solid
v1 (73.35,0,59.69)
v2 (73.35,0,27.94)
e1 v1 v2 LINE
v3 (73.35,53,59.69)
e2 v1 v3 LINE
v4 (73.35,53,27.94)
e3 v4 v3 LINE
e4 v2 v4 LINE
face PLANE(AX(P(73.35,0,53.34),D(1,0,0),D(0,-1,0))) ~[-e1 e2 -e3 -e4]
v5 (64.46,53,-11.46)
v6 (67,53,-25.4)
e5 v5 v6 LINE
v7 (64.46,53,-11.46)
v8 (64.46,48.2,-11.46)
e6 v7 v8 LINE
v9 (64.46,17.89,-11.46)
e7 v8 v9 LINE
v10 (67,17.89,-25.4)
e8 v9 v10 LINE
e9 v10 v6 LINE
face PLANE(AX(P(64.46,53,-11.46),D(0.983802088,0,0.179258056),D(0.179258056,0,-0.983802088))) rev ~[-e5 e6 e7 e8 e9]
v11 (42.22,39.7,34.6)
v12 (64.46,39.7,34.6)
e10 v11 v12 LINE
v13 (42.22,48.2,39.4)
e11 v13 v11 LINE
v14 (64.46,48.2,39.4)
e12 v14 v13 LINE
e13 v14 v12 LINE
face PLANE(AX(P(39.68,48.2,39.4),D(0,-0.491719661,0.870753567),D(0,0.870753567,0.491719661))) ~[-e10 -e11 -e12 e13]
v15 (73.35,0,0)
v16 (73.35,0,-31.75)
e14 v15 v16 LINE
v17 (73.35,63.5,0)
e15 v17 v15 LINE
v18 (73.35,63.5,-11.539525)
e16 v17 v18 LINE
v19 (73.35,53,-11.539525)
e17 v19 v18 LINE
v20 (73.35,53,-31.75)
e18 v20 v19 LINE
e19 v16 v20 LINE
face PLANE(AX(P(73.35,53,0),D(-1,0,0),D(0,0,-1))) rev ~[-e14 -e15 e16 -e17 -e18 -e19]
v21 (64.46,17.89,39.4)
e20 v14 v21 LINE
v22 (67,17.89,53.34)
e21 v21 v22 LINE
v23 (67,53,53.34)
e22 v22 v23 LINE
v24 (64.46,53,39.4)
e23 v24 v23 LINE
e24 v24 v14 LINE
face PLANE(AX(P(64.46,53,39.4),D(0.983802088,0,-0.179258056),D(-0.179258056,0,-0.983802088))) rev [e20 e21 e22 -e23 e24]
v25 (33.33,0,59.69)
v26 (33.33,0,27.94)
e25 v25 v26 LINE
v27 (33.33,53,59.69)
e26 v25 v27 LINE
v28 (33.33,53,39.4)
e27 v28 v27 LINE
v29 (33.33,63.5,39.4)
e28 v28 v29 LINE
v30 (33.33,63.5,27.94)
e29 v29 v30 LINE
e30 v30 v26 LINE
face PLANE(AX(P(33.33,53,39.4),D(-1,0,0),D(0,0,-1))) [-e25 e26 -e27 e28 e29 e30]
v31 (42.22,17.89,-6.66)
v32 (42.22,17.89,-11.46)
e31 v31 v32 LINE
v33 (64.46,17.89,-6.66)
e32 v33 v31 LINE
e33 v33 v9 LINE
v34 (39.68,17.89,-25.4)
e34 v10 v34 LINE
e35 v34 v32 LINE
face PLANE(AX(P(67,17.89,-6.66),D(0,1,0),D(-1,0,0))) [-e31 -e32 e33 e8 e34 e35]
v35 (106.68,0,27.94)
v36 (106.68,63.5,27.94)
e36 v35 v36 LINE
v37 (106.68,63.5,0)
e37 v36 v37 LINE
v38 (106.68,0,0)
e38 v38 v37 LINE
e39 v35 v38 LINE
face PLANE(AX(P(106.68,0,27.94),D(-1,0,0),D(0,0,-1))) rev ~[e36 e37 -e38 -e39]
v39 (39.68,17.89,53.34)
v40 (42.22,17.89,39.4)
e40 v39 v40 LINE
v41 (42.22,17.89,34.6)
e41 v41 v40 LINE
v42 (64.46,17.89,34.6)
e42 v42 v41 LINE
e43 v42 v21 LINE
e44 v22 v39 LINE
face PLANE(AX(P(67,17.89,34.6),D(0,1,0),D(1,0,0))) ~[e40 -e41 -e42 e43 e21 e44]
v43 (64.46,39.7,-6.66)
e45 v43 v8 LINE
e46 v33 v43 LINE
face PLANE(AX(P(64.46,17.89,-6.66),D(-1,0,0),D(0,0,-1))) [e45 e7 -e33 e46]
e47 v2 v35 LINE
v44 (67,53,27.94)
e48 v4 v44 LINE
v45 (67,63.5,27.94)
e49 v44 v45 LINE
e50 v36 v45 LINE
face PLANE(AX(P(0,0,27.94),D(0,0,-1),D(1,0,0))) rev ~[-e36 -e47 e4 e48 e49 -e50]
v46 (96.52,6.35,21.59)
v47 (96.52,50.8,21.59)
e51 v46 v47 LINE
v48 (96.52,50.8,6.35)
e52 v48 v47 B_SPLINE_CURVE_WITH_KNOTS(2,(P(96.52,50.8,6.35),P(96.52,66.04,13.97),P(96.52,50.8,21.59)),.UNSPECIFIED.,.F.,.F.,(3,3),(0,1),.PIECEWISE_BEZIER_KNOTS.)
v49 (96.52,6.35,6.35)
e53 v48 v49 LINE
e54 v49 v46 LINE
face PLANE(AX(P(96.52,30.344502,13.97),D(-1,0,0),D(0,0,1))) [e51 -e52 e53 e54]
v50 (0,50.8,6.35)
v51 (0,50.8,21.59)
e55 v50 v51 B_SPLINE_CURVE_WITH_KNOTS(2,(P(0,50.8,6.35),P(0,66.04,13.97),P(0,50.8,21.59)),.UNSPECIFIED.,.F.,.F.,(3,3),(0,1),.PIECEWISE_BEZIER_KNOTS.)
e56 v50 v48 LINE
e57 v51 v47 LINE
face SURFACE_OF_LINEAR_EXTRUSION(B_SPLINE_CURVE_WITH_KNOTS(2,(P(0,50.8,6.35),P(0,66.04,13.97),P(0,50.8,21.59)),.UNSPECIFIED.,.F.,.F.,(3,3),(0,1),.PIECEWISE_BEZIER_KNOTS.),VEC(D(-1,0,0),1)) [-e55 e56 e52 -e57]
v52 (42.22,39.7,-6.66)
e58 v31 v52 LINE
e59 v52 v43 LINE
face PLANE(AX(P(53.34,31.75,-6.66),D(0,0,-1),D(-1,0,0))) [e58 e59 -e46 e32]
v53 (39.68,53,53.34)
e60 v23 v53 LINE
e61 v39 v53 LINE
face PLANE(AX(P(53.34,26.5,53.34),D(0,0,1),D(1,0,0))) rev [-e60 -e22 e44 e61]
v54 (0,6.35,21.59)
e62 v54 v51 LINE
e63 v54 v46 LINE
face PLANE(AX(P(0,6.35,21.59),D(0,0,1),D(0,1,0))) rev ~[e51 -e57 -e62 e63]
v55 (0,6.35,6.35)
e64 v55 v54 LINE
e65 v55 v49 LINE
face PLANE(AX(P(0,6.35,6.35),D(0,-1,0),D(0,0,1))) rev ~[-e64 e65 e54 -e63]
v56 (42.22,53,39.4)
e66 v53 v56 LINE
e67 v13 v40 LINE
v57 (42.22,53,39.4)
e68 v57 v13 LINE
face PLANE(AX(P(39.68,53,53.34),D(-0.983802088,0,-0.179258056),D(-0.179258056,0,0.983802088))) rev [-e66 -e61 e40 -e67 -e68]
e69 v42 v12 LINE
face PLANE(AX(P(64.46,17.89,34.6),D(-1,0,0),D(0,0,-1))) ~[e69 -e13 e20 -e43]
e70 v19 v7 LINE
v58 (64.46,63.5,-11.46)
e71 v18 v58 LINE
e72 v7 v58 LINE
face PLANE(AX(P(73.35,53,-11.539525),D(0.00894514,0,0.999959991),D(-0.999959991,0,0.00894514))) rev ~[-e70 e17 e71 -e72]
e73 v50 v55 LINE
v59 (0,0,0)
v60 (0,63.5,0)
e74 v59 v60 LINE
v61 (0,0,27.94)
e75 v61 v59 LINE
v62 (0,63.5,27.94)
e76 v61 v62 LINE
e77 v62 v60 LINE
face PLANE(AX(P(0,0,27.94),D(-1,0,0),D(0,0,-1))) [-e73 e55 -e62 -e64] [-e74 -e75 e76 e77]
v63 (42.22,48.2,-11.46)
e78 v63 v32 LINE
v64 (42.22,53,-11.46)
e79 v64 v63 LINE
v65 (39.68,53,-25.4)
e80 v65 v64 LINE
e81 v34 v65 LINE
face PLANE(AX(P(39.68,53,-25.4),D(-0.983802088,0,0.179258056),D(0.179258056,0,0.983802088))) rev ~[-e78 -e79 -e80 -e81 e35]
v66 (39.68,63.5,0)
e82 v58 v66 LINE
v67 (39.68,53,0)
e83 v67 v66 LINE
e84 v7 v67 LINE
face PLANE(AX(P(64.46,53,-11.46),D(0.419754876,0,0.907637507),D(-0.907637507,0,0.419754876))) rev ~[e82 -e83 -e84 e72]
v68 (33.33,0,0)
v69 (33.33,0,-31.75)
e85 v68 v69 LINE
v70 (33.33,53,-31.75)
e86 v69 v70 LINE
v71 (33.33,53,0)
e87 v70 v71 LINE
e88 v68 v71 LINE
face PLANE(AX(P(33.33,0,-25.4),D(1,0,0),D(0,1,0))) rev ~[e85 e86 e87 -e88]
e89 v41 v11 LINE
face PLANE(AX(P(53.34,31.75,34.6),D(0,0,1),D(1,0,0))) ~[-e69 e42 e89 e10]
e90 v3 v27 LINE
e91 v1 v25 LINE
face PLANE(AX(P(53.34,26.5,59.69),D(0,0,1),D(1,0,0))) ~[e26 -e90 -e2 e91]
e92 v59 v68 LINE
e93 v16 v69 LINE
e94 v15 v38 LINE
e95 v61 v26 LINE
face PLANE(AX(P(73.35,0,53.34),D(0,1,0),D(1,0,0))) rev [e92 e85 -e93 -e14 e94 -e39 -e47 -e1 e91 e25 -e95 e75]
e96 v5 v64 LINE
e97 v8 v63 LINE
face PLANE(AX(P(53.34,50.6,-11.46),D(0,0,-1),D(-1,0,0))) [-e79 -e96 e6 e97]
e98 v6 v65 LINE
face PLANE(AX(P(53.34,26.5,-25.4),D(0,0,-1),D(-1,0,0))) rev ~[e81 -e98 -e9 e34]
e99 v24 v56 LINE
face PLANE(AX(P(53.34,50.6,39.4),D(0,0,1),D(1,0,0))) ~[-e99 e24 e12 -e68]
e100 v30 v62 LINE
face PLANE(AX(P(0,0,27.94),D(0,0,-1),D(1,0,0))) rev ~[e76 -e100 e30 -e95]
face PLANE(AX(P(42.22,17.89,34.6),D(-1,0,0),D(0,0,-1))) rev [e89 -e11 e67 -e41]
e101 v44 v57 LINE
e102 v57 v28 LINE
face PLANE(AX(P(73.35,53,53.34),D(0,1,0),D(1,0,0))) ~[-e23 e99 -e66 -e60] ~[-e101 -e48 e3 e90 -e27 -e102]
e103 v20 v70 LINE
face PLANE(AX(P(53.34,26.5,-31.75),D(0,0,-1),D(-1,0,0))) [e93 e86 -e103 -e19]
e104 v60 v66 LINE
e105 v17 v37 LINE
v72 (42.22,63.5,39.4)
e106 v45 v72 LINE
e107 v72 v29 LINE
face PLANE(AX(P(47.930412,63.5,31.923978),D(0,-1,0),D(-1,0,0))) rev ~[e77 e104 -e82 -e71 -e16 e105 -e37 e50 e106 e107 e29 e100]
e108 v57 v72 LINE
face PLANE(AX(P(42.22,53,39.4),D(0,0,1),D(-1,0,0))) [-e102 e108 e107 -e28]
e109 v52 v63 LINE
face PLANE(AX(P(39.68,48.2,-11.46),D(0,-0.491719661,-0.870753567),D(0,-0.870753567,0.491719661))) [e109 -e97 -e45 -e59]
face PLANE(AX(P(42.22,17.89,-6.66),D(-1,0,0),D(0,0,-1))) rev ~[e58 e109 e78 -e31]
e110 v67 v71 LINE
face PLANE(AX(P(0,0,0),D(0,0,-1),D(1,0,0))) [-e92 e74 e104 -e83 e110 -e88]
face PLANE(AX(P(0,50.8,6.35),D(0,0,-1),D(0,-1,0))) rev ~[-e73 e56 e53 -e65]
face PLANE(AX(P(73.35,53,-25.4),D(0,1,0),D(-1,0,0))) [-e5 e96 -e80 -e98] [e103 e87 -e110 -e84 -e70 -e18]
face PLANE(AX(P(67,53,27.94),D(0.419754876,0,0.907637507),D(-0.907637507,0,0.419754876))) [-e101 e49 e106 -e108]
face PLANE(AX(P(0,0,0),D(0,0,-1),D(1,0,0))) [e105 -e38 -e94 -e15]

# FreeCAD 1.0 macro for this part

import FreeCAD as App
import Part
import Sketcher
from FreeCAD import Vector
Q = App.Units.Quantity

doc = App.newDocument("Part")
body = doc.addObject("PartDesign::Body", "Body")

# Sketch on XZ plane
sketch1 = doc.addObject("Sketcher::SketchObject", "Sketch")
body.addObject(sketch1)
sketch1.AttachmentSupport = (doc.XZ_Plane, [""])
sketch1.MapMode = "FlatFace"
sketch1.addGeometry([
    Part.LineSegment(Vector(0, 0, 0), Vector(0, 28, 0)),
    Part.LineSegment(Vector(0, 28, 0), Vector(107, 28, 0)),
    Part.LineSegment(Vector(107, 28, 0), Vector(107, 0, 0)),
    Part.LineSegment(Vector(107, 0, 0), Vector(0, 0, 0)),
], False)
sketch1.addConstraint([
    Sketcher.Constraint("Coincident", 0, 2, 1, 1),
    Sketcher.Constraint("Coincident", 1, 2, 2, 1),
    Sketcher.Constraint("Coincident", 2, 2, 3, 1),
    Sketcher.Constraint("Coincident", 3, 2, 0, 1),
    Sketcher.Constraint("Vertical", 0),
    Sketcher.Constraint("Horizontal", 1),
    Sketcher.Constraint("Vertical", 2),
    Sketcher.Constraint("Horizontal", 3),
    Sketcher.Constraint("Coincident", 3, 2, -1, 1),
    Sketcher.Constraint("DistanceX", 1, 1, 1, 2, Q("4.2 in")),
    Sketcher.Constraint("DistanceY", 0, 1, 0, 2, Q("1.1 in")),
])
pad1 = doc.addObject("PartDesign::Pad", "Pad")
body.addObject(pad1)
pad1.Profile = sketch1
pad1.Length = Q("2.5 in")
pad1.Reversed = True

# Sketch on YZ plane
sketch2 = doc.addObject("Sketcher::SketchObject", "Sketch001")
body.addObject(sketch2)
sketch2.AttachmentSupport = (doc.YZ_Plane, [""])
sketch2.MapMode = "FlatFace"
sketch2.addGeometry([
    Part.LineSegment(Vector(50.8, 6.35, 0), Vector(6.35, 6.35, 0)),
    Part.LineSegment(Vector(6.35, 6.35, 0), Vector(6.35, 21.59, 0)),
    Part.LineSegment(Vector(6.35, 21.59, 0), Vector(50.8, 21.59, 0)),
    Part.BSplineCurve([Vector(50.8, 6.35, 0), Vector(66.04, 13.97, 0), Vector(50.8, 21.59, 0)], [3, 3], [0, 1], False, 2, [1, 1, 1], False),
], False)
sketch2.addConstraint([
    Sketcher.Constraint("Block", 3),
    Sketcher.Constraint("Coincident", 0, 2, 1, 1),
    Sketcher.Constraint("Coincident", 1, 2, 2, 1),
    Sketcher.Constraint("Coincident", 2, 2, 3, 2),
    Sketcher.Constraint("Coincident", 3, 1, 0, 1),
    Sketcher.Constraint("Horizontal", 0),
    Sketcher.Constraint("Vertical", 1),
    Sketcher.Constraint("Horizontal", 2),
    Sketcher.Constraint("DistanceX", 0, 2, 0, 1, Q("1.75 in")),
])
pocket1 = doc.addObject("PartDesign::Pocket", "Pocket")
body.addObject(pocket1)
pocket1.Profile = sketch2
pocket1.Length = Q("3.8 in")
pocket1.Reversed = True

# Sketch on XY plane
sketch3 = doc.addObject("Sketcher::SketchObject", "Sketch002")
body.addObject(sketch3)
sketch3.AttachmentSupport = (doc.XY_Plane, [""])
sketch3.MapMode = "FlatFace"
sketch3.addGeometry([
    Part.LineSegment(Vector(73, 64, 0), Vector(73, 0, 0)),
    Part.LineSegment(Vector(73, 0, 0), Vector(33, 0, 0)),
    Part.LineSegment(Vector(33, 0, 0), Vector(33, 64, 0)),
    Part.LineSegment(Vector(33, 64, 0), Vector(73, 64, 0)),
], False)
sketch3.addConstraint([
    Sketcher.Constraint("Coincident", 0, 2, 1, 1),
    Sketcher.Constraint("Coincident", 1, 2, 2, 1),
    Sketcher.Constraint("Coincident", 2, 2, 3, 1),
    Sketcher.Constraint("Coincident", 3, 2, 0, 1),
    Sketcher.Constraint("Vertical", 0),
    Sketcher.Constraint("Horizontal", 1),
    Sketcher.Constraint("Vertical", 2),
    Sketcher.Constraint("Horizontal", 3),
    Sketcher.Constraint("PointOnObject", 0, 2, -1),
    Sketcher.Constraint("DistanceY", 0, 2, 0, 1, Q("2.5 in")),
    Sketcher.Constraint("DistanceX", 1, 2, 1, 1, 40.02),
    Sketcher.Constraint("DistanceX", -1, 1, 0, 2, 73.35),
])
pad2 = doc.addObject("PartDesign::Pad", "Pad001")
body.addObject(pad2)
pad2.Profile = sketch3
pad2.Length = 6.66
pad2.Reversed = True

# Sketch on XY plane
sketch4 = doc.addObject("Sketcher::SketchObject", "Sketch003")
body.addObject(sketch4)
sketch4.AttachmentSupport = (doc.XY_Plane, [""])
sketch4.MapMode = "FlatFace"
sketch4.AttachmentOffset = App.Placement(Vector(0, 0, -6.66), App.Rotation())
sketch4.addGeometry([
    Part.LineSegment(Vector(73, 64, 0), Vector(73, 0, 0)),
    Part.LineSegment(Vector(73, 0, 0), Vector(67, 0, 0)),
    Part.LineSegment(Vector(67, 0, 0), Vector(67, 64, 0)),
    Part.LineSegment(Vector(67, 64, 0), Vector(73, 64, 0)),
], False)
sketch4.addConstraint([
    Sketcher.Constraint("Coincident", 0, 2, 1, 1),
    Sketcher.Constraint("Coincident", 1, 2, 2, 1),
    Sketcher.Constraint("Coincident", 2, 2, 3, 1),
    Sketcher.Constraint("Coincident", 3, 2, 0, 1),
    Sketcher.Constraint("Vertical", 0),
    Sketcher.Constraint("Horizontal", 1),
    Sketcher.Constraint("Vertical", 2),
    Sketcher.Constraint("Horizontal", 3),
    Sketcher.Constraint("PointOnObject", 0, 2, -1),
    Sketcher.Constraint("DistanceY", 0, 2, 0, 1, Q("2.5 in")),
    Sketcher.Constraint("DistanceX", 1, 2, 1, 1, Q("0.25 in")),
    Sketcher.Constraint("DistanceX", -1, 1, 0, 2, 73.35),
])
pad3 = doc.addObject("PartDesign::Pad", "Pad002")
body.addObject(pad3)
pad3.Profile = sketch4
pad3.Length = 18.74
pad3.Reversed = True

# Sketch on XY plane
sketch5 = doc.addObject("Sketcher::SketchObject", "Sketch004")
body.addObject(sketch5)
sketch5.AttachmentSupport = (doc.XY_Plane, [""])
sketch5.MapMode = "FlatFace"
sketch5.AttachmentOffset = App.Placement(Vector(0, 0, -6.66), App.Rotation())
sketch5.addGeometry([
    Part.LineSegment(Vector(40, 64, 0), Vector(40, 0, 0)),
    Part.LineSegment(Vector(40, 0, 0), Vector(33, 0, 0)),
    Part.LineSegment(Vector(33, 0, 0), Vector(33, 64, 0)),
    Part.LineSegment(Vector(33, 64, 0), Vector(40, 64, 0)),
], False)
sketch5.addConstraint([
    Sketcher.Constraint("Coincident", 0, 2, 1, 1),
    Sketcher.Constraint("Coincident", 1, 2, 2, 1),
    Sketcher.Constraint("Coincident", 2, 2, 3, 1),
    Sketcher.Constraint("Coincident", 3, 2, 0, 1),
    Sketcher.Constraint("Vertical", 0),
    Sketcher.Constraint("Horizontal", 1),
    Sketcher.Constraint("Vertical", 2),
    Sketcher.Constraint("Horizontal", 3),
    Sketcher.Constraint("PointOnObject", 0, 2, -1),
    Sketcher.Constraint("DistanceY", 0, 2, 0, 1, Q("2.5 in")),
    Sketcher.Constraint("DistanceX", 1, 2, 1, 1, Q("0.25 in")),
    Sketcher.Constraint("DistanceX", -1, 1, 0, 2, 39.68),
])
pad4 = doc.addObject("PartDesign::Pad", "Pad003")
body.addObject(pad4)
pad4.Profile = sketch5
pad4.Length = 18.74
pad4.Reversed = True

# Sketch on XY plane
sketch6 = doc.addObject("Sketcher::SketchObject", "Sketch005")
body.addObject(sketch6)
sketch6.AttachmentSupport = (doc.XY_Plane, [""])
sketch6.MapMode = "FlatFace"
sketch6.AttachmentOffset = App.Placement(Vector(0, 0, -6.66), App.Rotation())
sketch6.addGeometry([
    Part.LineSegment(Vector(67, 18, 0), Vector(67, 0, 0)),
    Part.LineSegment(Vector(67, 0, 0), Vector(40, 0, 0)),
    Part.LineSegment(Vector(40, 0, 0), Vector(40, 18, 0)),
    Part.LineSegment(Vector(40, 18, 0), Vector(67, 18, 0)),
], False)
sketch6.addConstraint([
    Sketcher.Constraint("Coincident", 0, 2, 1, 1),
    Sketcher.Constraint("Coincident", 1, 2, 2, 1),
    Sketcher.Constraint("Coincident", 2, 2, 3, 1),
    Sketcher.Constraint("Coincident", 3, 2, 0, 1),
    Sketcher.Constraint("Vertical", 0),
    Sketcher.Constraint("Horizontal", 1),
    Sketcher.Constraint("Vertical", 2),
    Sketcher.Constraint("Horizontal", 3),
    Sketcher.Constraint("PointOnObject", 0, 2, -1),
    Sketcher.Constraint("DistanceX", 1, 2, 1, 1, 27.32),
    Sketcher.Constraint("DistanceY", 0, 2, 0, 1, 17.89),
    Sketcher.Constraint("DistanceX", -1, 1, 0, 2, 67.0),
])
pad5 = doc.addObject("PartDesign::Pad", "Pad004")
body.addObject(pad5)
pad5.Profile = sketch6
pad5.Length = 18.74
pad5.Reversed = True

# Sketch on XZ plane
sketch7 = doc.addObject("Sketcher::SketchObject", "Sketch006")
body.addObject(sketch7)
sketch7.AttachmentSupport = (doc.XZ_Plane, [""])
sketch7.MapMode = "FlatFace"
sketch7.AttachmentOffset = App.Placement(Vector(0, 0, -2.5 * 25.4), App.Rotation())
sketch7.addGeometry([
    Part.LineSegment(Vector(33, 0, 0), Vector(73, 0, 0)),  # 0
    Part.LineSegment(Vector(73, 0, 0), Vector(73, -25, 0)),  # 1
    Part.LineSegment(Vector(73, -25, 0), Vector(67, -25, 0)),  # 2
    Part.LineSegment(Vector(67, -25, 0), Vector(67, -7, 0)),  # 3
    Part.LineSegment(Vector(67, -7, 0), Vector(40, -7, 0)),  # 4
    Part.LineSegment(Vector(40, -7, 0), Vector(40, -25, 0)),  # 5
    Part.LineSegment(Vector(40, -25, 0), Vector(33, -25, 0)),  # 6
    Part.LineSegment(Vector(33, -25, 0), Vector(33, 0, 0)),  # 7
], False)
sketch7.addConstraint([
    Sketcher.Constraint("Coincident", 0, 2, 1, 1),
    Sketcher.Constraint("Coincident", 1, 2, 2, 1),
    Sketcher.Constraint("Coincident", 2, 2, 3, 1),
    Sketcher.Constraint("Coincident", 3, 2, 4, 1),
    Sketcher.Constraint("Coincident", 4, 2, 5, 1),
    Sketcher.Constraint("Coincident", 5, 2, 6, 1),
    Sketcher.Constraint("Coincident", 6, 2, 7, 1),
    Sketcher.Constraint("Coincident", 7, 2, 0, 1),
    Sketcher.Constraint("Horizontal", 0),
    Sketcher.Constraint("Vertical", 1),
    Sketcher.Constraint("Horizontal", 2),
    Sketcher.Constraint("Vertical", 3),
    Sketcher.Constraint("Horizontal", 4),
    Sketcher.Constraint("Vertical", 5),
    Sketcher.Constraint("Horizontal", 6),
    Sketcher.Constraint("Vertical", 7),
    Sketcher.Constraint("PointOnObject", 0, 2, -1),
    Sketcher.Constraint("Horizontal", 2, 2, 5, 2),
    Sketcher.Constraint("Equal", 2, 6),
    Sketcher.Constraint("DistanceY", 1, 2, 1, 1, Q("1 in")),
    Sketcher.Constraint("DistanceX", 2, 2, 2, 1, Q("0.25 in")),
    Sketcher.Constraint("DistanceX", 0, 1, 0, 2, 40.02),
    Sketcher.Constraint("DistanceY", 3, 1, 3, 2, 18.74),
    Sketcher.Constraint("DistanceX", -1, 1, 0, 2, 73.35),
])
pocket2 = doc.addObject("PartDesign::Pocket", "Pocket001")
body.addObject(pocket2)
pocket2.Profile = sketch7
pocket2.Length = 10.5
pocket2.Reversed = True

# Sketch on XY plane
sketch8 = doc.addObject("Sketcher::SketchObject", "Sketch007")
body.addObject(sketch8)
sketch8.AttachmentSupport = (doc.XY_Plane, [""])
sketch8.MapMode = "FlatFace"
sketch8.AttachmentOffset = App.Placement(Vector(0, 0, -6.66), App.Rotation())
sketch8.addGeometry([
    Part.LineSegment(Vector(67, 53, 0), Vector(67, 48.2, 0)),
    Part.LineSegment(Vector(67, 48.2, 0), Vector(39.7, 48.2, 0)),
    Part.LineSegment(Vector(39.7, 48.2, 0), Vector(39.7, 53, 0)),
    Part.LineSegment(Vector(39.7, 53, 0), Vector(67, 53, 0)),
], False)
sketch8.addConstraint([
    Sketcher.Constraint("Coincident", 0, 2, 1, 1),
    Sketcher.Constraint("Coincident", 1, 2, 2, 1),
    Sketcher.Constraint("Coincident", 2, 2, 3, 1),
    Sketcher.Constraint("Coincident", 3, 2, 0, 1),
    Sketcher.Constraint("Vertical", 0),
    Sketcher.Constraint("Horizontal", 1),
    Sketcher.Constraint("Vertical", 2),
    Sketcher.Constraint("Horizontal", 3),
    Sketcher.Constraint("DistanceX", 1, 2, 1, 1, 27.32),
    Sketcher.Constraint("DistanceY", 0, 2, 0, 1, 4.8),
    Sketcher.Constraint("DistanceX", -1, 1, 0, 2, 67.0),
    Sketcher.Constraint("DistanceY", -1, 1, 0, 2, 48.2),
])
pad6 = doc.addObject("PartDesign::Pad", "Pad005")
body.addObject(pad6)
pad6.Profile = sketch8
pad6.Length = 4.8
pad6.Reversed = True

# Sketch on YZ plane
sketch9 = doc.addObject("Sketcher::SketchObject", "Sketch008")
body.addObject(sketch9)
sketch9.AttachmentSupport = (doc.YZ_Plane, [""])
sketch9.MapMode = "FlatFace"
sketch9.AttachmentOffset = App.Placement(Vector(0, 0, 39.68), App.Rotation())
sketch9.addGeometry([
    Part.LineSegment(Vector(39.7, -6.7, 0), Vector(48.2, -11.5, 0)),
    Part.LineSegment(Vector(48.2, -11.5, 0), Vector(48.2, -6.7, 0)),
    Part.LineSegment(Vector(48.2, -6.7, 0), Vector(39.7, -6.7, 0)),
], False)
sketch9.addConstraint([
    Sketcher.Constraint("Coincident", 0, 2, 1, 1),
    Sketcher.Constraint("Coincident", 1, 2, 2, 1),
    Sketcher.Constraint("Coincident", 2, 2, 0, 1),
    Sketcher.Constraint("Vertical", 1),
    Sketcher.Constraint("Horizontal", 2),
    Sketcher.Constraint("DistanceX", 2, 2, 2, 1, 8.5),
    Sketcher.Constraint("DistanceY", 1, 1, 1, 2, 4.8),
    Sketcher.Constraint("DistanceX", -1, 1, 0, 2, 48.2),
    Sketcher.Constraint("DistanceY", 0, 2, -1, 1, 11.46),
])
pad7 = doc.addObject("PartDesign::Pad", "Pad006")
body.addObject(pad7)
pad7.Profile = sketch9
pad7.Length = 33.36

# Sketch on XZ plane
sketch10 = doc.addObject("Sketcher::SketchObject", "Sketch009")
body.addObject(sketch10)
sketch10.AttachmentSupport = (doc.XZ_Plane, [""])
sketch10.MapMode = "FlatFace"
sketch10.AttachmentOffset = App.Placement(Vector(0, 0, -53), App.Rotation())
sketch10.addGeometry([
    Part.LineSegment(Vector(67, -25.4, 0), Vector(64.5, -11.5, 0)),
    Part.LineSegment(Vector(64.5, -11.5, 0), Vector(67, -11.5, 0)),
    Part.LineSegment(Vector(67, -11.5, 0), Vector(67, -25.4, 0)),
], False)
sketch10.addConstraint([
    Sketcher.Constraint("Coincident", 0, 2, 1, 1),
    Sketcher.Constraint("Coincident", 1, 2, 2, 1),
    Sketcher.Constraint("Coincident", 2, 2, 0, 1),
    Sketcher.Constraint("Horizontal", 1),
    Sketcher.Constraint("Vertical", 2),
    Sketcher.Constraint("DistanceX", 1, 1, 1, 2, Q("0.1 in")),
    Sketcher.Constraint("DistanceY", 2, 2, -1, 1, Q("1 in")),
    Sketcher.Constraint("DistanceY", 2, 2, 2, 1, 13.94),
    Sketcher.Constraint("DistanceX", -1, 1, 0, 2, 64.46),
])
pad8 = doc.addObject("PartDesign::Pad", "Pad007")
body.addObject(pad8)
pad8.Profile = sketch10
pad8.Length = 35.11

# Sketch on XZ plane
sketch11 = doc.addObject("Sketcher::SketchObject", "Sketch010")
body.addObject(sketch11)
sketch11.AttachmentSupport = (doc.XZ_Plane, [""])
sketch11.MapMode = "FlatFace"
sketch11.AttachmentOffset = App.Placement(Vector(0, 0, -53), App.Rotation())
sketch11.addGeometry([
    Part.LineSegment(Vector(39.7, -11.5, 0), Vector(42.2, -11.5, 0)),
    Part.LineSegment(Vector(42.2, -11.5, 0), Vector(39.7, -25.4, 0)),
    Part.LineSegment(Vector(39.7, -25.4, 0), Vector(39.7, -11.5, 0)),
], False)
sketch11.addConstraint([
    Sketcher.Constraint("Coincident", 0, 2, 1, 1),
    Sketcher.Constraint("Coincident", 1, 2, 2, 1),
    Sketcher.Constraint("Coincident", 2, 2, 0, 1),
    Sketcher.Constraint("Horizontal", 0),
    Sketcher.Constraint("Vertical", 2),
    Sketcher.Constraint("DistanceX", 0, 1, 0, 2, Q("0.1 in")),
    Sketcher.Constraint("DistanceY", 1, 2, -1, 1, Q("1 in")),
    Sketcher.Constraint("DistanceY", 2, 1, 2, 2, 13.94),
    Sketcher.Constraint("DistanceX", -1, 1, 0, 2, 42.22),
])
pad9 = doc.addObject("PartDesign::Pad", "Pad008")
body.addObject(pad9)
pad9.Profile = sketch11
pad9.Length = 35.11

# Sketch on XY plane
sketch12 = doc.addObject("Sketcher::SketchObject", "Sketch011")
body.addObject(sketch12)
sketch12.AttachmentSupport = (doc.XY_Plane, [""])
sketch12.MapMode = "FlatFace"
sketch12.AttachmentOffset = App.Placement(Vector(0, 0, -1 * 25.4), App.Rotation())
sketch12.addGeometry([
    Part.LineSegment(Vector(73, 53, 0), Vector(73, 0, 0)),
    Part.LineSegment(Vector(73, 0, 0), Vector(33, 0, 0)),
    Part.LineSegment(Vector(33, 0, 0), Vector(33, 53, 0)),
    Part.LineSegment(Vector(33, 53, 0), Vector(73, 53, 0)),
], False)
sketch12.addConstraint([
    Sketcher.Constraint("Coincident", 0, 2, 1, 1),
    Sketcher.Constraint("Coincident", 1, 2, 2, 1),
    Sketcher.Constraint("Coincident", 2, 2, 3, 1),
    Sketcher.Constraint("Coincident", 3, 2, 0, 1),
    Sketcher.Constraint("Vertical", 0),
    Sketcher.Constraint("Horizontal", 1),
    Sketcher.Constraint("Vertical", 2),
    Sketcher.Constraint("Horizontal", 3),
    Sketcher.Constraint("PointOnObject", 0, 2, -1),
    Sketcher.Constraint("DistanceX", 1, 2, 1, 1, 40.02),
    Sketcher.Constraint("DistanceY", 0, 2, 0, 1, 53.0),
    Sketcher.Constraint("DistanceX", -1, 1, 0, 2, 73.35),
])
pad10 = doc.addObject("PartDesign::Pad", "Pad009")
body.addObject(pad10)
pad10.Profile = sketch12
pad10.Length = Q("0.25 in")
pad10.Reversed = True

# Sketch on XZ plane
sketch13 = doc.addObject("Sketcher::SketchObject", "Sketch012")
body.addObject(sketch13)
sketch13.AttachmentSupport = (doc.XZ_Plane, [""])
sketch13.MapMode = "FlatFace"
sketch13.AttachmentOffset = App.Placement(Vector(0, 0, -17.89), App.Rotation())
sketch13.addGeometry([
    Part.LineSegment(Vector(64.5, -11.5, 0), Vector(64.5, -6.7, 0)),
    Part.LineSegment(Vector(64.5, -6.7, 0), Vector(67, -6.7, 0)),
    Part.LineSegment(Vector(67, -6.7, 0), Vector(67, -11.5, 0)),
    Part.LineSegment(Vector(67, -11.5, 0), Vector(64.5, -11.5, 0)),
], False)
sketch13.addConstraint([
    Sketcher.Constraint("Coincident", 0, 2, 1, 1),
    Sketcher.Constraint("Coincident", 1, 2, 2, 1),
    Sketcher.Constraint("Coincident", 2, 2, 3, 1),
    Sketcher.Constraint("Coincident", 3, 2, 0, 1),
    Sketcher.Constraint("Vertical", 0),
    Sketcher.Constraint("Horizontal", 1),
    Sketcher.Constraint("Vertical", 2),
    Sketcher.Constraint("Horizontal", 3),
    Sketcher.Constraint("DistanceX", 1, 1, 1, 2, Q("0.1 in")),
    Sketcher.Constraint("DistanceY", 0, 1, 0, 2, 4.8),
    Sketcher.Constraint("DistanceX", -1, 1, 0, 2, 64.46),
    Sketcher.Constraint("DistanceY", 0, 2, -1, 1, 6.66),
])
pad11 = doc.addObject("PartDesign::Pad", "Pad010")
body.addObject(pad11)
pad11.Profile = sketch13
pad11.Length = 35.11
pad11.Reversed = True

# Sketch on XZ plane
sketch14 = doc.addObject("Sketcher::SketchObject", "Sketch013")
body.addObject(sketch14)
sketch14.AttachmentSupport = (doc.XZ_Plane, [""])
sketch14.MapMode = "FlatFace"
sketch14.AttachmentOffset = App.Placement(Vector(0, 0, -17.89), App.Rotation())
sketch14.addGeometry([
    Part.LineSegment(Vector(39.7, -11.5, 0), Vector(39.7, -6.7, 0)),
    Part.LineSegment(Vector(39.7, -6.7, 0), Vector(42.2, -6.7, 0)),
    Part.LineSegment(Vector(42.2, -6.7, 0), Vector(42.2, -11.5, 0)),
    Part.LineSegment(Vector(42.2, -11.5, 0), Vector(39.7, -11.5, 0)),
], False)
sketch14.addConstraint([
    Sketcher.Constraint("Coincident", 0, 2, 1, 1),
    Sketcher.Constraint("Coincident", 1, 2, 2, 1),
    Sketcher.Constraint("Coincident", 2, 2, 3, 1),
    Sketcher.Constraint("Coincident", 3, 2, 0, 1),
    Sketcher.Constraint("Vertical", 0),
    Sketcher.Constraint("Horizontal", 1),
    Sketcher.Constraint("Vertical", 2),
    Sketcher.Constraint("Horizontal", 3),
    Sketcher.Constraint("DistanceX", 1, 1, 1, 2, Q("0.1 in")),
    Sketcher.Constraint("DistanceY", 0, 1, 0, 2, 4.8),
    Sketcher.Constraint("DistanceX", -1, 1, 0, 2, 39.68),
    Sketcher.Constraint("DistanceY", 0, 2, -1, 1, 6.66),
])
pad12 = doc.addObject("PartDesign::Pad", "Pad011")
body.addObject(pad12)
pad12.Profile = sketch14
pad12.Length = 35.11
pad12.Reversed = True
doc.recompute()

datumplane = doc.addObject("PartDesign::Plane", "DatumPlane")
body.addObject(datumplane)
datumplane.AttachmentSupport = (doc.XY_Plane, [""])
datumplane.MapMode = "FlatFace"
datumplane.AttachmentOffset = App.Placement(Vector(0, 0, 0.55 * 25.4), App.Rotation())
mirrored = doc.addObject("PartDesign::Mirrored", "Mirrored")
body.addObject(mirrored)
mirrored.Originals = [pad2, pad3, pad4, pad5, pocket2, pad6, pad7, pad8, pad9, pad10, pad11, pad12]
mirrored.MirrorPlane = (datumplane, [""])
body.Tip = mirrored

# Sketch on XZ plane
sketch15 = doc.addObject("Sketcher::SketchObject", "Sketch014")
body.addObject(sketch15)
sketch15.AttachmentSupport = (doc.XZ_Plane, [""])
sketch15.MapMode = "FlatFace"
sketch15.AttachmentOffset = App.Placement(Vector(0, 0, -53), App.Rotation())
sketch15.addGeometry([
    Part.LineSegment(Vector(64, -11, 0), Vector(40, 0, 0)),
    Part.LineSegment(Vector(40, 0, 0), Vector(73, 0, 0)),
    Part.LineSegment(Vector(73, 0, 0), Vector(73, -12, 0)),
    Part.LineSegment(Vector(73, -12, 0), Vector(64, -11, 0)),
], False)
sketch15.addConstraint([
    Sketcher.Constraint("Coincident", 0, 2, 1, 1),
    Sketcher.Constraint("Coincident", 1, 2, 2, 1),
    Sketcher.Constraint("Coincident", 2, 2, 3, 1),
    Sketcher.Constraint("Coincident", 3, 2, 0, 1),
    Sketcher.Constraint("Horizontal", 1),
    Sketcher.Constraint("Vertical", 2),
    Sketcher.Constraint("PointOnObject", 0, 2, -1),
    Sketcher.Constraint("DistanceX", 3, 2, 2, 2, Q("0.35 in")),
    Sketcher.Constraint("DistanceX", 1, 1, 1, 2, 33.67),
    Sketcher.Constraint("DistanceX", -1, 1, 0, 2, 39.68),
    Sketcher.Constraint("DistanceY", 3, 2, -1, 1, 11.46),
    Sketcher.Constraint("DistanceY", 2, 2, 2, 1, 11.539525),
])
pad13 = doc.addObject("PartDesign::Pad", "Pad012")
body.addObject(pad13)
pad13.Profile = sketch15
pad13.Length = 10.5
pad13.Reversed = True

# Sketch on XZ plane
sketch16 = doc.addObject("Sketcher::SketchObject", "Sketch015")
body.addObject(sketch16)
sketch16.AttachmentSupport = (doc.XZ_Plane, [""])
sketch16.MapMode = "FlatFace"
sketch16.AttachmentOffset = App.Placement(Vector(0, 0, -53), App.Rotation())
sketch16.addGeometry([
    Part.LineSegment(Vector(33, 39, 0), Vector(42, 39, 0)),
    Part.LineSegment(Vector(42, 39, 0), Vector(67, 28, 0)),
    Part.LineSegment(Vector(67, 28, 0), Vector(33, 28, 0)),
    Part.LineSegment(Vector(33, 28, 0), Vector(33, 39, 0)),
], False)
sketch16.addConstraint([
    Sketcher.Constraint("Coincident", 0, 2, 1, 1),
    Sketcher.Constraint("Coincident", 1, 2, 2, 1),
    Sketcher.Constraint("Coincident", 2, 2, 3, 1),
    Sketcher.Constraint("Coincident", 3, 2, 0, 1),
    Sketcher.Constraint("Horizontal", 0),
    Sketcher.Constraint("Horizontal", 2),
    Sketcher.Constraint("Vertical", 3),
    Sketcher.Constraint("DistanceX", 0, 1, 0, 2, Q("0.35 in")),
    Sketcher.Constraint("DistanceY", -1, 1, 1, 2, Q("1.1 in")),
    Sketcher.Constraint("DistanceX", 2, 2, 2, 1, 33.67),
    Sketcher.Constraint("DistanceY", 3, 1, 3, 2, 11.46),
    Sketcher.Constraint("DistanceX", -1, 1, 0, 2, 42.22),
])
pad14 = doc.addObject("PartDesign::Pad", "Pad013")
body.addObject(pad14)
pad14.Profile = sketch16
pad14.Length = 10.5
pad14.Reversed = True

doc.recompute()
